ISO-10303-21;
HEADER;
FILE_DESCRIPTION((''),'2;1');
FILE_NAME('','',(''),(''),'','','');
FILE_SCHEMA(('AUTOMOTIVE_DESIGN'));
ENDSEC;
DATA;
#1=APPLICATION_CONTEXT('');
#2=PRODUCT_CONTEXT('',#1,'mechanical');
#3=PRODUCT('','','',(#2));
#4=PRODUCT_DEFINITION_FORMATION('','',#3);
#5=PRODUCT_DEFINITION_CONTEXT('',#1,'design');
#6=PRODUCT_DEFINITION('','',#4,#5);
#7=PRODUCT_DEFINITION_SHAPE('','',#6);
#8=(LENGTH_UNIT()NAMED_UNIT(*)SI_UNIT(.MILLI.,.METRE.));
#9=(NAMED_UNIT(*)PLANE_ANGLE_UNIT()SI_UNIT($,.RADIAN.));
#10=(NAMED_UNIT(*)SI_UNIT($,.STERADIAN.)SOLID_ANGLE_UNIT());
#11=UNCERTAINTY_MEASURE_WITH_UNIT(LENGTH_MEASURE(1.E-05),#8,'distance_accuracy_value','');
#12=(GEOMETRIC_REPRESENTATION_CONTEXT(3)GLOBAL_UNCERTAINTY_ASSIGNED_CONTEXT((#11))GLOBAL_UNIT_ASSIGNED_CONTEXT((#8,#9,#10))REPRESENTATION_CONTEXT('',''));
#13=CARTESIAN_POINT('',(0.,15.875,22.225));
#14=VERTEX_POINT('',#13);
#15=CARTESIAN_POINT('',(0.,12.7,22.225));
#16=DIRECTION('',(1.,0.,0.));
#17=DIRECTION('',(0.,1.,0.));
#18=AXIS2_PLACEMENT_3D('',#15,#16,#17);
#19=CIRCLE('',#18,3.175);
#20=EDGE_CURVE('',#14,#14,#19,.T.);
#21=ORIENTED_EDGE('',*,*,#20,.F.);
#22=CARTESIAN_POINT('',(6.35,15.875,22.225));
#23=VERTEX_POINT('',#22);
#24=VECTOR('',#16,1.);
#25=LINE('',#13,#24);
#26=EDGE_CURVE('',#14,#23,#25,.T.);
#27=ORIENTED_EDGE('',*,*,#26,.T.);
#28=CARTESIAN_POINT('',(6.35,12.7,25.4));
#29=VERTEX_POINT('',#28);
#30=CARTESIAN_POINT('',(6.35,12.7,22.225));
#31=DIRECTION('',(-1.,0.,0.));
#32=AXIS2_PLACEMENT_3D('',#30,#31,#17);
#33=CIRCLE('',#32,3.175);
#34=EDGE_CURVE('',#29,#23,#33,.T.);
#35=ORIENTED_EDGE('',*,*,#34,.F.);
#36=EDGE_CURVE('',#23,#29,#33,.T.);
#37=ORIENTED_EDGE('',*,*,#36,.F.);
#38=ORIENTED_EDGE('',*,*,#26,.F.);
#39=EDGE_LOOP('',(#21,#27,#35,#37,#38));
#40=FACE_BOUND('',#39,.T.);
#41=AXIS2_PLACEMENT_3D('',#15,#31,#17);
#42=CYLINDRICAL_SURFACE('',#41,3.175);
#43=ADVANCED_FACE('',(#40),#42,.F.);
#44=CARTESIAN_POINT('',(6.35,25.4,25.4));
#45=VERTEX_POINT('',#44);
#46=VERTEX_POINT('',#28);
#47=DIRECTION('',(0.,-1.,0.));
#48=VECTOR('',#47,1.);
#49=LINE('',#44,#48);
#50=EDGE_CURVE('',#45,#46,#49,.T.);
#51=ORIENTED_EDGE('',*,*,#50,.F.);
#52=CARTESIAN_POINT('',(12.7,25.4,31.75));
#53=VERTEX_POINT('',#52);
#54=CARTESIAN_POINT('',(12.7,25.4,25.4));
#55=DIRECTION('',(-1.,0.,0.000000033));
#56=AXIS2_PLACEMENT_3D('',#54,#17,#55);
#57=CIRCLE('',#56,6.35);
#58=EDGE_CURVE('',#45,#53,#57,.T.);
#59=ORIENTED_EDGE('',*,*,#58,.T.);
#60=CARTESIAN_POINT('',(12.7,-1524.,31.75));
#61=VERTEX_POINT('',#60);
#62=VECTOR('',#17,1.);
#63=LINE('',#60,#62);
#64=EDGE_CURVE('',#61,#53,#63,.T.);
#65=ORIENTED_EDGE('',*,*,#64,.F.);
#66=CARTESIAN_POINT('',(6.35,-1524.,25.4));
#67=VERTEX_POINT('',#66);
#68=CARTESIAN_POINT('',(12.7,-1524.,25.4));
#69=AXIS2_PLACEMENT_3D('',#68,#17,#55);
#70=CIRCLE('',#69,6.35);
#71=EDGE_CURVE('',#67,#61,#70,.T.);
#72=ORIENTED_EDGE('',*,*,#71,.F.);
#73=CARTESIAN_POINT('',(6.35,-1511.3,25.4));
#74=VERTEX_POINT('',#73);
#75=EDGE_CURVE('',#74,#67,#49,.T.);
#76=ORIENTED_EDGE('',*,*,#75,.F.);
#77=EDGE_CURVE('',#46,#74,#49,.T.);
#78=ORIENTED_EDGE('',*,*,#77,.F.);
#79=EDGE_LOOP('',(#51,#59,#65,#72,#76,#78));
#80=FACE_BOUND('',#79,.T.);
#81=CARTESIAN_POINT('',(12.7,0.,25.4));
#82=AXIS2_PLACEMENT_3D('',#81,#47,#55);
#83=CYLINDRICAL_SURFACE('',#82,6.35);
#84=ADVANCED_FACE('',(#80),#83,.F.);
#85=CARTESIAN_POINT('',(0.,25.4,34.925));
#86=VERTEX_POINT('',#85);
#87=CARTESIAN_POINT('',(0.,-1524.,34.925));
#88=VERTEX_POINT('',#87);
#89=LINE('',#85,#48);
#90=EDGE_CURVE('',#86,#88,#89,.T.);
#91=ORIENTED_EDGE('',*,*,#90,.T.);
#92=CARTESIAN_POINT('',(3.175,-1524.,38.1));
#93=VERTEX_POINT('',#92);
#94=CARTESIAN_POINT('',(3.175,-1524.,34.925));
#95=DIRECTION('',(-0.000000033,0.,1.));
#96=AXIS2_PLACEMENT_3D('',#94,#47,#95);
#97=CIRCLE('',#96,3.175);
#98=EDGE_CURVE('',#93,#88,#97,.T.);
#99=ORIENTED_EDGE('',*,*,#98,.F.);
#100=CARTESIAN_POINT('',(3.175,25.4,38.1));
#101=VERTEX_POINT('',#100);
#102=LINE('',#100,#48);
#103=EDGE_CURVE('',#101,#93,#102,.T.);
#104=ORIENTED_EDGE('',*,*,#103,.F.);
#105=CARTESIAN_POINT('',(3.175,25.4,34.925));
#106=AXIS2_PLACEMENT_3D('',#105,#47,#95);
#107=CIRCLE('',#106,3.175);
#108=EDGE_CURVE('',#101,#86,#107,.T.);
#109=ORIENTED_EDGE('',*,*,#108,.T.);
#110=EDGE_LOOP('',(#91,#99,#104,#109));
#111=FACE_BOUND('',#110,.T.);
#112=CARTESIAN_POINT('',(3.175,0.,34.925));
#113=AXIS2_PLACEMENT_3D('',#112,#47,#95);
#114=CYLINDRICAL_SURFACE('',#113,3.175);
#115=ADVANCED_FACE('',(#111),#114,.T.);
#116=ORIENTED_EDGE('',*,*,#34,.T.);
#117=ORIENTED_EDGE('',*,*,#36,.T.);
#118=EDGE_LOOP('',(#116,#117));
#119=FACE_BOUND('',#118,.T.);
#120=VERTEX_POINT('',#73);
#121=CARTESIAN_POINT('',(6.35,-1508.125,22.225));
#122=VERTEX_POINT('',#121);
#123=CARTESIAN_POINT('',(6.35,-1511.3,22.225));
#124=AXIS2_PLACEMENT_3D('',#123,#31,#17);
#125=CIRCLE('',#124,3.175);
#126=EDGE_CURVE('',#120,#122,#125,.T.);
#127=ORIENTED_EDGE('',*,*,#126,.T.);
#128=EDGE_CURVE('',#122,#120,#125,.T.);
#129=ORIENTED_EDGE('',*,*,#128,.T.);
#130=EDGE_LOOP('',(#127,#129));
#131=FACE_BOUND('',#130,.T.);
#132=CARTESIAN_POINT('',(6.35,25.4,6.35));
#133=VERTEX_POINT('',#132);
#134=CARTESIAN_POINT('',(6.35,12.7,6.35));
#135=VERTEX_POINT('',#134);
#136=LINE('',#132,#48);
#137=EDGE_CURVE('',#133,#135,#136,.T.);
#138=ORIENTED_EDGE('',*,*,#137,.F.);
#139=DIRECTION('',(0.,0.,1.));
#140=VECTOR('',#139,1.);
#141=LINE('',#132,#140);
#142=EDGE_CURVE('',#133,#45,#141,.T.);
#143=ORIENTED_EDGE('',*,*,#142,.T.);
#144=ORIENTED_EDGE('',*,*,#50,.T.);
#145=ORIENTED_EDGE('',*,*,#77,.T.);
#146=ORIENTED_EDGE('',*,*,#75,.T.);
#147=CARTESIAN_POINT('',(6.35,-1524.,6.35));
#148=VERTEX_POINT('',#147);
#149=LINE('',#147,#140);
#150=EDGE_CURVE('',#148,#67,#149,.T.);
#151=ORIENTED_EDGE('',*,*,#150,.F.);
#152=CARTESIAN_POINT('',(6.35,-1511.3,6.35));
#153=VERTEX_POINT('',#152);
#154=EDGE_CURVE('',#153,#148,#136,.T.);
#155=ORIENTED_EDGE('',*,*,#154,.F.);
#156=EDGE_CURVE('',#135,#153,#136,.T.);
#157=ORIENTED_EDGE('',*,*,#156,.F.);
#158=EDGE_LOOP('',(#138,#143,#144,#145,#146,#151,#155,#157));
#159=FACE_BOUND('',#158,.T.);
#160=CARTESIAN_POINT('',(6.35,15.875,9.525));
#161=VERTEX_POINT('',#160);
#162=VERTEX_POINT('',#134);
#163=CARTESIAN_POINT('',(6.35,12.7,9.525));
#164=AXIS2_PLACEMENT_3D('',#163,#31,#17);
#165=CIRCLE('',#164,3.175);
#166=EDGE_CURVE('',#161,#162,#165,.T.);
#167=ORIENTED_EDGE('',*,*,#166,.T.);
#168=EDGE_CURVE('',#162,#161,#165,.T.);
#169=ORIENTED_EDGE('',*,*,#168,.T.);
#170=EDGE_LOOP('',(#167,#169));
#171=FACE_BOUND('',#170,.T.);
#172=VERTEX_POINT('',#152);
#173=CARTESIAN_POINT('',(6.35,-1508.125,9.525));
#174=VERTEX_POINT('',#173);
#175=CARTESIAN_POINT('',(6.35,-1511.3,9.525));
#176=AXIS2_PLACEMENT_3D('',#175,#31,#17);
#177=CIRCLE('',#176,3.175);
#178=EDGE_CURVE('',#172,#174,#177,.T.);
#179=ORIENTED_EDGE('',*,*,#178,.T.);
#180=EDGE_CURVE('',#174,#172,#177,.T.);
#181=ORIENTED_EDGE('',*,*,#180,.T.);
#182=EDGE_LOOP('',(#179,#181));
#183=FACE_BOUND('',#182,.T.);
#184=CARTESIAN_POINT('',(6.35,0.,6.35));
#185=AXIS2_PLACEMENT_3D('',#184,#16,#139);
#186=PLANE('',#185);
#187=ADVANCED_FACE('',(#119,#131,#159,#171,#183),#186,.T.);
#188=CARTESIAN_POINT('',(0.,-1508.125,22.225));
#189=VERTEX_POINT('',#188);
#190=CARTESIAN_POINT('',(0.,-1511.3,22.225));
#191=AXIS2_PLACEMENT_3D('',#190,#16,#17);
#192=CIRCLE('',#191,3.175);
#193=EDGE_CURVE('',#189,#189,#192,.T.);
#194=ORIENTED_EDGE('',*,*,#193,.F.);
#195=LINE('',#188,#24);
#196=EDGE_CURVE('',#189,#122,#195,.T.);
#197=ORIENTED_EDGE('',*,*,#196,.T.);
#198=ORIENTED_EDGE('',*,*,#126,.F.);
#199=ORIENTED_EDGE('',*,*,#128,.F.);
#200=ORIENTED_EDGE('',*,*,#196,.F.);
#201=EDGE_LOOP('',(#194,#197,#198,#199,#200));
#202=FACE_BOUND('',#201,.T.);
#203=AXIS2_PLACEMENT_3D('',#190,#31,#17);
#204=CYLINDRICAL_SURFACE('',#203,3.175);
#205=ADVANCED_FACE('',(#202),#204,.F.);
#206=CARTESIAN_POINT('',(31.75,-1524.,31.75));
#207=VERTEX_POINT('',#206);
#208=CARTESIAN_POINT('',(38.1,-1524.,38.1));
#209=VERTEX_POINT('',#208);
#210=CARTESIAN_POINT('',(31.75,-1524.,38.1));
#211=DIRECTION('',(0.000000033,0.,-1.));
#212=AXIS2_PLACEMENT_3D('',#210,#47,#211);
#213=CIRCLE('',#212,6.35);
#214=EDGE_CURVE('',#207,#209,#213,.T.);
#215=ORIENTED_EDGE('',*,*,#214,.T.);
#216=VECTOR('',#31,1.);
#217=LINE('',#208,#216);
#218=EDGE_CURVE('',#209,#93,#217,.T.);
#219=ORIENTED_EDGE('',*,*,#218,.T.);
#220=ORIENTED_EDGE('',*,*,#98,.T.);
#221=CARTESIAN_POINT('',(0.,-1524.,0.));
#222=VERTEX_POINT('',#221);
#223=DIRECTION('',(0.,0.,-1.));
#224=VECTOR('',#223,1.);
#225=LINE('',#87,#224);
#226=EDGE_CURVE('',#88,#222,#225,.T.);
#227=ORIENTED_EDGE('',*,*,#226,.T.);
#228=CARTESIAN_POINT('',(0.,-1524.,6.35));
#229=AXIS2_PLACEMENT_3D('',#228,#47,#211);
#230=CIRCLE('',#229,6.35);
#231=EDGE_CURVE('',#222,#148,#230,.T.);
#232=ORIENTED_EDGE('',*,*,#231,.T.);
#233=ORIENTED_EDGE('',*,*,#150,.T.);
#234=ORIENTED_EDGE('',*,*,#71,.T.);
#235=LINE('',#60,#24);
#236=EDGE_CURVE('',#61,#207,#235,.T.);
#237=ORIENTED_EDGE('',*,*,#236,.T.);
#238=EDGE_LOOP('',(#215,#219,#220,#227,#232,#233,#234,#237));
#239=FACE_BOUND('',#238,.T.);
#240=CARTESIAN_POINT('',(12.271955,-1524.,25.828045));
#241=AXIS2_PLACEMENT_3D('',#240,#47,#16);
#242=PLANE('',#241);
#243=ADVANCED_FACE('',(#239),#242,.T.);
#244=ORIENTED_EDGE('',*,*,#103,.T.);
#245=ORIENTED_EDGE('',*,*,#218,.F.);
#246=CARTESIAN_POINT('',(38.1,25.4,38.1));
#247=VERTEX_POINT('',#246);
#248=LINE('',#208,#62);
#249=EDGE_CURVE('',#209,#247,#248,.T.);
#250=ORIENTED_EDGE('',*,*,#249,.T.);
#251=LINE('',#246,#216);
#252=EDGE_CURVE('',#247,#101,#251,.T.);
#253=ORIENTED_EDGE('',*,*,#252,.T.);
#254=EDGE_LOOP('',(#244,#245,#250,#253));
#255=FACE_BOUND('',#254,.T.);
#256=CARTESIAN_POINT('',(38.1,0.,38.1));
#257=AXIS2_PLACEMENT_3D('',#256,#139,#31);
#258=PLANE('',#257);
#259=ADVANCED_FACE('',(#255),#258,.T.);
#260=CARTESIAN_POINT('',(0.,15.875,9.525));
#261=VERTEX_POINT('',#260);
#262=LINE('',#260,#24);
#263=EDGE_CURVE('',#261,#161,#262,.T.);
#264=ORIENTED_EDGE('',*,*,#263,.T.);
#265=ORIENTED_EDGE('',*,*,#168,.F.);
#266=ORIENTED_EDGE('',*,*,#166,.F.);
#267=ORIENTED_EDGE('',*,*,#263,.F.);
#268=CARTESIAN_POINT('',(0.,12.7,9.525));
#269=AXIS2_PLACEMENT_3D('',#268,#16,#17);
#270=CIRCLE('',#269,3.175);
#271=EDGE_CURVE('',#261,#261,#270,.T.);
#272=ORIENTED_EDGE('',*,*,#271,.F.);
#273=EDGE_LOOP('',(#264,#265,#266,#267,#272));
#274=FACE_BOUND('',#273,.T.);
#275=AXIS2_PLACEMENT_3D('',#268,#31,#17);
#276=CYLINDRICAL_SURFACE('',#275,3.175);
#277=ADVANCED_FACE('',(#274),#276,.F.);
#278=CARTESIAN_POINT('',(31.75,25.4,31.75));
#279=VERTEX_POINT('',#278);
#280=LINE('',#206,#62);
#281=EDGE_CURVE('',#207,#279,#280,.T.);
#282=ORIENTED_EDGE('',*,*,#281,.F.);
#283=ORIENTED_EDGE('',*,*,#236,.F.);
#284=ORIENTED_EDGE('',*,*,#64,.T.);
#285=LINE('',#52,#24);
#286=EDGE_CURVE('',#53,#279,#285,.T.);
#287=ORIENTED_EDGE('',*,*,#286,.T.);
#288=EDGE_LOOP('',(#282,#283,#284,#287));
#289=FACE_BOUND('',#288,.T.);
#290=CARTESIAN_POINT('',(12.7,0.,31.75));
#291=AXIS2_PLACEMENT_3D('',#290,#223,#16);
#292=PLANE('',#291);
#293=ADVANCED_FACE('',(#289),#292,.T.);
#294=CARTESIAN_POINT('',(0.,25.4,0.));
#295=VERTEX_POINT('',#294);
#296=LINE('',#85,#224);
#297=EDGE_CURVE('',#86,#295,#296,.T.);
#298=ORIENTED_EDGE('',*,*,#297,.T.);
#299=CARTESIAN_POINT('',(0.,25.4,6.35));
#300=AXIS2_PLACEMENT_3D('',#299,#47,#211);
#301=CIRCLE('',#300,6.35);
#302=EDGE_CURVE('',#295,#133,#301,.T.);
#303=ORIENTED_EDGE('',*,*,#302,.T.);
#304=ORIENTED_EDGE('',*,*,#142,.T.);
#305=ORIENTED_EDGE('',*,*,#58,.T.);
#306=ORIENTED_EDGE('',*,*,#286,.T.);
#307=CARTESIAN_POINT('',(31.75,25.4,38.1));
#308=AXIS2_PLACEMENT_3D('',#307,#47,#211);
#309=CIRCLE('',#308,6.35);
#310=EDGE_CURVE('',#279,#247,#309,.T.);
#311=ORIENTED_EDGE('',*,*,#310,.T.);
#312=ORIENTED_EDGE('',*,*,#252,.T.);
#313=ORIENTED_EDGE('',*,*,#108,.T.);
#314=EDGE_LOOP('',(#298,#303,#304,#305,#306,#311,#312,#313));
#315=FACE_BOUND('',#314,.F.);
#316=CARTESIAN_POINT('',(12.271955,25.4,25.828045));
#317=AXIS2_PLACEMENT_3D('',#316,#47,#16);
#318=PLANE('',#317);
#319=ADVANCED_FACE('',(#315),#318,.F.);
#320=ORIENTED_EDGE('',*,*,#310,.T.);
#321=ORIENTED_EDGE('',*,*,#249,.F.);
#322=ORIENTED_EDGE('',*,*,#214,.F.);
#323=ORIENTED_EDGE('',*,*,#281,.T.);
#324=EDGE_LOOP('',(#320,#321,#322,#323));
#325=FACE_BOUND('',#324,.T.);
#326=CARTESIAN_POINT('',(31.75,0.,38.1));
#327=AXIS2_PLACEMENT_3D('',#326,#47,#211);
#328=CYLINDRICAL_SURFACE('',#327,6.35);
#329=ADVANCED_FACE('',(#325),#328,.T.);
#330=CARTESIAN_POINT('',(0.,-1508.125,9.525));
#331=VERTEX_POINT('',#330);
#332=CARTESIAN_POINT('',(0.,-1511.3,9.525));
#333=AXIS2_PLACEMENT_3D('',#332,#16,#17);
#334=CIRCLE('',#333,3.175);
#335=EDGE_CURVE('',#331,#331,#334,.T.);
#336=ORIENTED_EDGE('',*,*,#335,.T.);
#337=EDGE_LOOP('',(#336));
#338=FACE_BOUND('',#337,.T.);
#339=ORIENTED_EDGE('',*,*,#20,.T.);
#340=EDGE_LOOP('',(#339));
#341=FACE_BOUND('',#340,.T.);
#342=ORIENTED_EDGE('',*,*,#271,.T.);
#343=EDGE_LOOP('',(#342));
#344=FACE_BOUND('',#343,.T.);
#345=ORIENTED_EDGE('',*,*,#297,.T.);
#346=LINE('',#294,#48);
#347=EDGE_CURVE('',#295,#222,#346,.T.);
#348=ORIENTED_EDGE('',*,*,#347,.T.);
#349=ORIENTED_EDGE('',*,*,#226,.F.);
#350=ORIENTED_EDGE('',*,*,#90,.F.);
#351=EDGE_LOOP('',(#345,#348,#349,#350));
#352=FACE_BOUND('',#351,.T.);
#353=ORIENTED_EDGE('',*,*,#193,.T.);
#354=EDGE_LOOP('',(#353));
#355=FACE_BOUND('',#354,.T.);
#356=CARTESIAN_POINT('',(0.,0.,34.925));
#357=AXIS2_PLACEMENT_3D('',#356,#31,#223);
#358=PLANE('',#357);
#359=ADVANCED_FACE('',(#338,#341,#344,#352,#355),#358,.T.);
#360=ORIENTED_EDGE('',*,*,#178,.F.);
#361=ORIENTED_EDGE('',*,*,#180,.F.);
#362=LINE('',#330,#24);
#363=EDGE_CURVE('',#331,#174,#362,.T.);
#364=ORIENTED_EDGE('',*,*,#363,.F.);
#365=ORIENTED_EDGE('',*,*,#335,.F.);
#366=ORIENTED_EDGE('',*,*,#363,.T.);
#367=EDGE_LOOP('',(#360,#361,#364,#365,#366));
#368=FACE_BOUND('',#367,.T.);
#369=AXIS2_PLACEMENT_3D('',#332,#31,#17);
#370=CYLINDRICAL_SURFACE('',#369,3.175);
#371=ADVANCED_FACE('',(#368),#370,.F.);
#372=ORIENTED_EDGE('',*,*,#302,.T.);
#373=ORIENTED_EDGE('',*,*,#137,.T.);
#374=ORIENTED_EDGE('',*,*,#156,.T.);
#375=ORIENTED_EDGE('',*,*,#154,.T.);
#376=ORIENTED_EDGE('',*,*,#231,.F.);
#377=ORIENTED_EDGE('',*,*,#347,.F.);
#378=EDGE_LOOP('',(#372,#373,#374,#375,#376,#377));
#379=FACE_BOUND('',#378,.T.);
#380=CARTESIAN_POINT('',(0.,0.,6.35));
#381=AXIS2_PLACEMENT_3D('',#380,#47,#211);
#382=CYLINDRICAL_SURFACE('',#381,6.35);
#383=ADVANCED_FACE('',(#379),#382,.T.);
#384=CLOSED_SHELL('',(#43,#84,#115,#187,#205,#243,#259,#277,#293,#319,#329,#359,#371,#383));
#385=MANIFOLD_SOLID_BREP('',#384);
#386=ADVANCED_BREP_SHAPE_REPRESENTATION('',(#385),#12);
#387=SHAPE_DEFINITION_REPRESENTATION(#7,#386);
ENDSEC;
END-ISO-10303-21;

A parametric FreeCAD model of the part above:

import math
import FreeCAD as App
import Part
import Sketcher

V = App.Vector
Q = App.Units.Quantity

doc = App.newDocument("Part")
body = doc.addObject("PartDesign::Body", "Body")

# Sketch on XZ plane
sketch1 = body.newObject("Sketcher::SketchObject", "Sketch")
sketch1.AttachmentSupport = (doc.getObject("XZ_Plane"), [""])
sketch1.MapMode = "FlatFace"
sketch1.addGeometry(Part.LineSegment(V(38.1, 38.1, 0), V(3.2, 38.1, 0)), False)
sketch1.addGeometry(Part.ArcOfCircle(Part.Circle(V(3.2, 34.9, 0), V(0, 0, 1), 3.2), math.radians(90), math.radians(180)), False)
sketch1.addGeometry(Part.LineSegment(V(0, 34.9, 0), V(0, 0, 0)), False)
sketch1.addGeometry(Part.ArcOfCircle(Part.Circle(V(0, 6.4, 0), V(0, 0, 1), 6.4), math.radians(-90), math.radians(0)), False)
sketch1.addGeometry(Part.LineSegment(V(6.3, 6.3, 0), V(6.3, 25.4, 0)), False)
sketch1.addGeometry(Part.ArcOfCircle(Part.Circle(V(12.7, 25.4, 0), V(0, 0, 1), 6.4), math.radians(90), math.radians(180)), False)
sketch1.addGeometry(Part.LineSegment(V(12.7, 31.8, 0), V(31.8, 31.8, 0)), False)
sketch1.addGeometry(Part.ArcOfCircle(Part.Circle(V(31.7, 38.1, 0), V(0, 0, 1), 6.4), math.radians(-90), math.radians(0)), False)
sketch1.addConstraint(Sketcher.Constraint("Tangent", 0, 2, 1, 1))
sketch1.addConstraint(Sketcher.Constraint("Tangent", 1, 2, 2, 1))
sketch1.addConstraint(Sketcher.Constraint("Coincident", 2, 2, 3, 1))
sketch1.addConstraint(Sketcher.Constraint("Tangent", 3, 2, 4, 1))
sketch1.addConstraint(Sketcher.Constraint("Tangent", 4, 2, 5, 2))
sketch1.addConstraint(Sketcher.Constraint("Tangent", 5, 1, 6, 1))
sketch1.addConstraint(Sketcher.Constraint("Tangent", 6, 2, 7, 1))
sketch1.addConstraint(Sketcher.Constraint("Coincident", 7, 2, 0, 1))
sketch1.addConstraint(Sketcher.Constraint("Horizontal", 0))
sketch1.addConstraint(Sketcher.Constraint("Vertical", 2))
sketch1.addConstraint(Sketcher.Constraint("Vertical", 4))
sketch1.addConstraint(Sketcher.Constraint("Horizontal", 6))
sketch1.addConstraint(Sketcher.Constraint("Coincident", 2, 2, -1, 1))
sketch1.addConstraint(Sketcher.Constraint("Equal", 3, 5))
sketch1.addConstraint(Sketcher.Constraint("Equal", 5, 7))
sketch1.addConstraint(Sketcher.Constraint("PointOnObject", 3, 3, -2))
sketch1.addConstraint(Sketcher.Constraint("Horizontal", 7, 3, 0, 2))
sketch1.addConstraint(Sketcher.Constraint("Equal", 0, 2))
sketch1.addConstraint(Sketcher.Constraint("Radius", 3, Q("0.25 in")))
sketch1.addConstraint(Sketcher.Constraint("DistanceY", -1, 1, 5, 3, Q("1 in")))
sketch1.addConstraint(Sketcher.Constraint("Radius", 1, Q("0.125 in")))
pad1 = body.newObject("PartDesign::Pad", "Pad")
pad1.Profile = sketch1
pad1.Type = "TwoLengths"
pad1.Length = Q("60 in")
pad1.Length2 = Q("1 in")

# Sketch on YZ plane
sketch2 = body.newObject("Sketcher::SketchObject", "Sketch001")
sketch2.AttachmentSupport = (doc.getObject("YZ_Plane"), [""])
sketch2.MapMode = "FlatFace"
sketch2.addGeometry(Part.Circle(V(12.7, 9.5, 0), V(0, 0, 1), 3.2), False)
sketch2.addGeometry(Part.Circle(V(12.7, 22.2, 0), V(0, 0, 1), 3.2), False)
sketch2.addGeometry(Part.Circle(V(-1511.3, 9.5, 0), V(0, 0, 1), 3.2), False)
sketch2.addGeometry(Part.Circle(V(-1511.3, 22.2, 0), V(0, 0, 1), 3.2), False)
sketch2.addConstraint(Sketcher.Constraint("Equal", 0, 1))
sketch2.addConstraint(Sketcher.Constraint("Equal", 1, 2))
sketch2.addConstraint(Sketcher.Constraint("Equal", 2, 3))
sketch2.addConstraint(Sketcher.Constraint("Horizontal", 0, 3, 2, 3))
sketch2.addConstraint(Sketcher.Constraint("Horizontal", 1, 3, 3, 3))
sketch2.addConstraint(Sketcher.Constraint("Vertical", 0, 3, 1, 3))
sketch2.addConstraint(Sketcher.Constraint("Vertical", 2, 3, 3, 3))
sketch2.addConstraint(Sketcher.Constraint("Diameter", 0, Q("0.25 in")))
sketch2.addConstraint(Sketcher.Constraint("DistanceX", 2, 3, 0, 3, Q("60 in")))
sketch2.addConstraint(Sketcher.Constraint("DistanceX", -1, 1, 0, 3, Q("0.5 in")))
sketch2.addConstraint(Sketcher.Constraint("DistanceY", 0, 3, 1, 3, Q("0.5 in")))
sketch2.addConstraint(Sketcher.Constraint("DistanceY", -1, 1, 0, 3, Q("0.375 in")))
pocket1 = body.newObject("PartDesign::Pocket", "Pocket")
pocket1.Profile = sketch2
pocket1.Length = Q("1.5 in")
pocket1.Reversed = True

doc.recompute()
